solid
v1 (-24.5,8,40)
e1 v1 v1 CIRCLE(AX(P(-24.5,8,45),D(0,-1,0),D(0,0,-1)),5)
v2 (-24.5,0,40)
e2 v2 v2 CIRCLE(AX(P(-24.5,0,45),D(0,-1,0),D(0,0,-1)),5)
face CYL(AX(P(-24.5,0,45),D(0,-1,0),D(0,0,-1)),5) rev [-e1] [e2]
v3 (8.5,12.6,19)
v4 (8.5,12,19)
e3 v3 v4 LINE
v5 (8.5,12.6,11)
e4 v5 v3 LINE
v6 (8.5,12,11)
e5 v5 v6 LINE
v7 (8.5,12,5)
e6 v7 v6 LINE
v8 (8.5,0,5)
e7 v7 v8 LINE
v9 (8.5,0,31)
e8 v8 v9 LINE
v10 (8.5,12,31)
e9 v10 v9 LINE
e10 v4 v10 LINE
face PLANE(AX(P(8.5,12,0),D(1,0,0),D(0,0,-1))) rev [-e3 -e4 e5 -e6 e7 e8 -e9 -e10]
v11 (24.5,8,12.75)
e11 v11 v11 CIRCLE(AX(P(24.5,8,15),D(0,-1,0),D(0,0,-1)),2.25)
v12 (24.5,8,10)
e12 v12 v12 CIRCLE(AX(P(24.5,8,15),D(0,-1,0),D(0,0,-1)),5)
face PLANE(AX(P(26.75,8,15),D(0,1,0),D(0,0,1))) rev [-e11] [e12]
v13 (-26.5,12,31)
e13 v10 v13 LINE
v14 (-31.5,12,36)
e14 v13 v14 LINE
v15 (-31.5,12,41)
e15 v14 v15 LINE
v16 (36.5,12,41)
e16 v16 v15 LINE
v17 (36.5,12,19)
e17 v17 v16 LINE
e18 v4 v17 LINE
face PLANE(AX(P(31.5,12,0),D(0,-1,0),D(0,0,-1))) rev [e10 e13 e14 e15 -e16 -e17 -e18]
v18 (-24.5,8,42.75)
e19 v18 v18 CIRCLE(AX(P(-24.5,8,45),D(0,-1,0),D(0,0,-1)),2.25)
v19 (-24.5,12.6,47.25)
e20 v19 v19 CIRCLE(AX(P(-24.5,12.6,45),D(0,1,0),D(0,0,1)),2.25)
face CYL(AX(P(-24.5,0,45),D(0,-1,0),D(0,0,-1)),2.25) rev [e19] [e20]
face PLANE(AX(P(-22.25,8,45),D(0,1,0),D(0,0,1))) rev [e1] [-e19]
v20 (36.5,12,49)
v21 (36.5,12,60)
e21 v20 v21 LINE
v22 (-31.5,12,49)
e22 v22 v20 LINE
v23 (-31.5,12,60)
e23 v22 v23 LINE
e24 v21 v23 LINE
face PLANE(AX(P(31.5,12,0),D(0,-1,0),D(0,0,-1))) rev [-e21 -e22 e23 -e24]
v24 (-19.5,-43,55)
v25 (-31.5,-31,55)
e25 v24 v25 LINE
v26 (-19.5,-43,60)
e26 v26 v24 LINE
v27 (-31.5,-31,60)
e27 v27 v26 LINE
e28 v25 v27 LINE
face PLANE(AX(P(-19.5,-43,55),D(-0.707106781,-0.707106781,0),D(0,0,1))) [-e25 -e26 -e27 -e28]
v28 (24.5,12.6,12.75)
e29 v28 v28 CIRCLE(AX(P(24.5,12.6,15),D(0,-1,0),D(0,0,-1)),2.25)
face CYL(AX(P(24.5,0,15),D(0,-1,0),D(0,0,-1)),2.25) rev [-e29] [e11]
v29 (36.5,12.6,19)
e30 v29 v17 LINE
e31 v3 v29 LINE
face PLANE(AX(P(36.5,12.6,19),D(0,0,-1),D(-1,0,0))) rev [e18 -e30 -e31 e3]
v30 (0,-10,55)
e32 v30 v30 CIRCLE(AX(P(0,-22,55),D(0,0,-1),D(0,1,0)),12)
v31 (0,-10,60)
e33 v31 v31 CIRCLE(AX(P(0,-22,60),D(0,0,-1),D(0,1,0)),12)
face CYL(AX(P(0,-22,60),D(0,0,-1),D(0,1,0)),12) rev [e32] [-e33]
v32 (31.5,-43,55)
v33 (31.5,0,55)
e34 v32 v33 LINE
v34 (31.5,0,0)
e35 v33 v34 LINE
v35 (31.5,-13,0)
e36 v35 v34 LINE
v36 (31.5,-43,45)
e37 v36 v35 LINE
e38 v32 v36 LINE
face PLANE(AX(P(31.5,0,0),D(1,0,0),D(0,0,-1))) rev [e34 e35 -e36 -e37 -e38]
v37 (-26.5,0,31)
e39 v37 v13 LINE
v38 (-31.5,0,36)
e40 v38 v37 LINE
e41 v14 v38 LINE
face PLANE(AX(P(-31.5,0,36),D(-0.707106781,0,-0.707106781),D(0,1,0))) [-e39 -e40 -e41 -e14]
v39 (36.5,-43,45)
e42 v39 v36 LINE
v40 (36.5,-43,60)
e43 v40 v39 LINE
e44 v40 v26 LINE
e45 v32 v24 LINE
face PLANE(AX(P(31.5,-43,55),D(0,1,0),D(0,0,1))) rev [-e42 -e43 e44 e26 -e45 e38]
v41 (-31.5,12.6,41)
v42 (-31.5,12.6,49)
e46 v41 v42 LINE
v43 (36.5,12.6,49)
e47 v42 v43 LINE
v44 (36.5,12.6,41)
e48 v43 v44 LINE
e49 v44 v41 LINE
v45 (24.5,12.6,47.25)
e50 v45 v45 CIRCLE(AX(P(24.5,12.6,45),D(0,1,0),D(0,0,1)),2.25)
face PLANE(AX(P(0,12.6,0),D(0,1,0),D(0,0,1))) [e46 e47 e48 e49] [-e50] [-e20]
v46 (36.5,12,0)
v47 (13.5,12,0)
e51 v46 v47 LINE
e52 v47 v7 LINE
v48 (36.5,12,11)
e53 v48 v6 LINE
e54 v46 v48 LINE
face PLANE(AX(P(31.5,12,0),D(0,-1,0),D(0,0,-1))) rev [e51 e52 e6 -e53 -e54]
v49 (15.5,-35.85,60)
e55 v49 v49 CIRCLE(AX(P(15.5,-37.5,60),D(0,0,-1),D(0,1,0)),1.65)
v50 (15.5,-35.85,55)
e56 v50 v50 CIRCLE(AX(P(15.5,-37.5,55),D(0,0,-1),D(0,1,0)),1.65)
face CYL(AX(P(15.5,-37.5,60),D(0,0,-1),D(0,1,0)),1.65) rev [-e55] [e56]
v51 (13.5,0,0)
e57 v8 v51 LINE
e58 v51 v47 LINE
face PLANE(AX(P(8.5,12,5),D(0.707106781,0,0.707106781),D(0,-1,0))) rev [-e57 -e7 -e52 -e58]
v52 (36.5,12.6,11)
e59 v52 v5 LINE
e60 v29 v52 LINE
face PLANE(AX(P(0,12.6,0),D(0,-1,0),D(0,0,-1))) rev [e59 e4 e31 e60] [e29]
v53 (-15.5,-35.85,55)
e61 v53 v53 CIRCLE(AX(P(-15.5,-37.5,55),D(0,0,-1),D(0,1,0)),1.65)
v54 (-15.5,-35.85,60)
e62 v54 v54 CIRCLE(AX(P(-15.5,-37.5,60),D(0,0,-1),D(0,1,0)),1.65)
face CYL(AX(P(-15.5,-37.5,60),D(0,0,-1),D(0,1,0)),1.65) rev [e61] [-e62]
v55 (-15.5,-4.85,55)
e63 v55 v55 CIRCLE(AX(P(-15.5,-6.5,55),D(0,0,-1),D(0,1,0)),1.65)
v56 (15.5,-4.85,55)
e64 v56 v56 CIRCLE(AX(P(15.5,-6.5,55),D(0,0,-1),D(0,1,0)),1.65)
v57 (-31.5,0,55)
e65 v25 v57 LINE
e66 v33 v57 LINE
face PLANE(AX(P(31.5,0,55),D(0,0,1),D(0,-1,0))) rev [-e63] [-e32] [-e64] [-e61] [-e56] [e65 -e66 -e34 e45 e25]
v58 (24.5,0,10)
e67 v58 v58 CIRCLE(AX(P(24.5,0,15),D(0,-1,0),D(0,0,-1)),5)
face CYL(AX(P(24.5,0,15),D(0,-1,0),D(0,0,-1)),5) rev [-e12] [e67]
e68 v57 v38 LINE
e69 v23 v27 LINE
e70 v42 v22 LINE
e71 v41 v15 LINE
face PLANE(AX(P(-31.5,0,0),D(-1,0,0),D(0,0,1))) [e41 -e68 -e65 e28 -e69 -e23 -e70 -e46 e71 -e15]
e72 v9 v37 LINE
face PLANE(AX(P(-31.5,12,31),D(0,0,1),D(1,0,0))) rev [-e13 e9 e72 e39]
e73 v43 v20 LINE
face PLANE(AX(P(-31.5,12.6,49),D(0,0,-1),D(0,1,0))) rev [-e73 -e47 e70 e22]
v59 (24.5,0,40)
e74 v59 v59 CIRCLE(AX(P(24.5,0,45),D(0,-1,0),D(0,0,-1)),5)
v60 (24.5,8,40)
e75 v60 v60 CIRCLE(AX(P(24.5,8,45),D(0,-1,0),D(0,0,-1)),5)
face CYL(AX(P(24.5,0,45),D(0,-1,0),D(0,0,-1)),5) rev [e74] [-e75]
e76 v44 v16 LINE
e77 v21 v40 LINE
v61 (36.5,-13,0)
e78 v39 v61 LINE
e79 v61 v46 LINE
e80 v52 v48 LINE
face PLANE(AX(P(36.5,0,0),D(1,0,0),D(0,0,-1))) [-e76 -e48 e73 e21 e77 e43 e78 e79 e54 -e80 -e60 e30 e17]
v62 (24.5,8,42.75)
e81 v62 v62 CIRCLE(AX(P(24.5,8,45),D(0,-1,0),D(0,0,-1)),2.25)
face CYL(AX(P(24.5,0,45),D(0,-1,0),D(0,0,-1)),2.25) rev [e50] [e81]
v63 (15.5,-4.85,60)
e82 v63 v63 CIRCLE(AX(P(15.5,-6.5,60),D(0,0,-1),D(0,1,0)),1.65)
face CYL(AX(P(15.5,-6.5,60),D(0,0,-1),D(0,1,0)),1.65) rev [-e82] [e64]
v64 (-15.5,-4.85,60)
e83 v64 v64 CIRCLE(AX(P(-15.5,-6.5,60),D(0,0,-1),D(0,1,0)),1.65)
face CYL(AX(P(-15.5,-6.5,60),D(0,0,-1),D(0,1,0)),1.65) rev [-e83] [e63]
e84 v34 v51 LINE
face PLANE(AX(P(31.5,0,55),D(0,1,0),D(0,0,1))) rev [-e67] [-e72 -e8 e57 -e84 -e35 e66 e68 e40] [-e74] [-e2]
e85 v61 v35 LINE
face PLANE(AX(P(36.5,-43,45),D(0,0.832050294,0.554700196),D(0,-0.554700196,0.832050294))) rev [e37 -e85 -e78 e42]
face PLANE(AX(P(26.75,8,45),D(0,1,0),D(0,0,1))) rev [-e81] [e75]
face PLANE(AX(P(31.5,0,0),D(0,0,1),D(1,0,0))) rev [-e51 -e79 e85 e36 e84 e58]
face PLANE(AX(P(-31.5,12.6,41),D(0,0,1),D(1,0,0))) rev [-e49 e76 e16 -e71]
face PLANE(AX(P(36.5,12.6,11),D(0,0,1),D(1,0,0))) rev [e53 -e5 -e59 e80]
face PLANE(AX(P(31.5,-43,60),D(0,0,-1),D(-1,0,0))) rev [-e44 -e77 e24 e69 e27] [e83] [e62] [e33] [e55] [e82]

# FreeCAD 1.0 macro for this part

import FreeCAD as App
import Part
import Sketcher
Q = App.Units.Quantity


def edges_at(feature, points):
    """Names of the edges that pass closest to the given points."""
    edges = feature.Shape.Edges
    near = lambda p: min(range(len(edges)), key=lambda i: edges[i].distToShape(Part.Vertex(*p))[0])
    return sorted({f"Edge{near(p) + 1}" for p in points})


def add_polygon(sketch, points):
    """Adds a closed chain of lines whose ends are joined by coincident constraints."""
    first, n = sketch.GeometryCount, len(points)
    for a, b in zip(points, points[1:] + points[:1]):
        sketch.addGeometry(Part.LineSegment(App.Vector(*a, 0), App.Vector(*b, 0)), False)
    for i in range(n):
        sketch.addConstraint(Sketcher.Constraint("Coincident", first + i, 2, first + (i + 1) % n, 1))

doc = App.newDocument("Part")
body = doc.addObject("PartDesign::Body", "Body")

sketch1 = body.newObject("Sketcher::SketchObject", "Sketch")
sketch1.AttachmentSupport = (doc.getObject("YZ_Plane"), [""])
sketch1.MapMode = "FlatFace"
add_polygon(sketch1, [(0, 55), (0, 0), (12, 0), (12, 60), (-43, 60), (-43, 55)])
sketch1.addConstraint([
    Sketcher.Constraint("Vertical", 0),
    Sketcher.Constraint("Horizontal", 1),
    Sketcher.Constraint("Vertical", 2),
    Sketcher.Constraint("Horizontal", 3),
    Sketcher.Constraint("Vertical", 4),
    Sketcher.Constraint("Horizontal", 5),
    Sketcher.Constraint("Coincident", 0, 2, -1, 1),
    Sketcher.Constraint("Equal", 3, 0),
    Sketcher.Constraint("DistanceX", 1, 1, 1, 2, Q("12 mm")),
    Sketcher.Constraint("DistanceX", 3, 2, 3, 1, Q("55 mm")),
    Sketcher.Constraint("DistanceY", 2, 1, 2, 2, Q("60 mm")),
])
pad1 = body.newObject("PartDesign::Pad", "Pad")
pad1.Profile = sketch1
pad1.Length = 63
pad1.Midplane = True

sketch2 = body.newObject("Sketcher::SketchObject", "Sketch001")
sketch2.AttachmentSupport = (doc.getObject("XY_Plane"), [""])
sketch2.MapMode = "FlatFace"
sketch2.AttachmentOffset = App.Placement(App.Vector(0, 0, 55), App.Rotation())
sketch2.addGeometry([
    Part.Circle(App.Vector(0, -22, 0), App.Vector(0, 0, 1), 12),
    Part.Circle(App.Vector(15.5, -6.5, 0), App.Vector(0, 0, 1), 1.6),
    Part.Circle(App.Vector(15.5, -37.5, 0), App.Vector(0, 0, 1), 1.6),
    Part.Circle(App.Vector(-15.5, -37.5, 0), App.Vector(0, 0, 1), 1.6),
    Part.Circle(App.Vector(-15.5, -6.5, 0), App.Vector(0, 0, 1), 1.6),
], False)
sketch2.addConstraint([
    Sketcher.Constraint("Equal", 1, 2),
    Sketcher.Constraint("Equal", 2, 3),
    Sketcher.Constraint("Equal", 3, 4),
    Sketcher.Constraint("Symmetric", 2, 3, 3, 3, -2),
    Sketcher.Constraint("Symmetric", 1, 3, 4, 3, -2),
    Sketcher.Constraint("PointOnObject", 0, 3, -2),
    Sketcher.Constraint("Vertical", 1, 3, 2, 3),
    Sketcher.Constraint("Diameter", 0, Q("24 mm")),
    Sketcher.Constraint("Diameter", 1, Q("3.3 mm")),
    Sketcher.Constraint("DistanceY", 0, 3, -1, 1, Q("22 mm")),
    Sketcher.Constraint("DistanceY", 2, 3, 1, 3, Q("31 mm")),
    Sketcher.Constraint("DistanceX", 3, 3, 2, 3, Q("31 mm")),
    Sketcher.Constraint("DistanceY", 1, 3, -1, 1, Q("6.5 mm")),
])
pocket1 = body.newObject("PartDesign::Pocket", "Pocket")
pocket1.Profile = sketch2
pocket1.Type = "ThroughAll"
pocket1.Reversed = True

sketch3 = body.newObject("Sketcher::SketchObject", "Sketch002")
sketch3.AttachmentSupport = (doc.getObject("XZ_Plane"), [""])
sketch3.MapMode = "FlatFace"
add_polygon(sketch3, [(-32, 31), (-32, 0), (8, 0), (8, 31)])
sketch3.addConstraint([
    Sketcher.Constraint("Vertical", 0),
    Sketcher.Constraint("Horizontal", 1),
    Sketcher.Constraint("Vertical", 2),
    Sketcher.Constraint("Horizontal", 3),
    Sketcher.Constraint("PointOnObject", 0, 2, -1),
    Sketcher.Constraint("DistanceX", 1, 1, 1, 2, Q("40 mm")),
    Sketcher.Constraint("DistanceY", 0, 2, 0, 1, Q("31 mm")),
    Sketcher.Constraint("DistanceX", 0, 2, -1, 1, Q("31.5 mm")),
])
pocket2 = body.newObject("PartDesign::Pocket", "Pocket001")
pocket2.Profile = sketch3
pocket2.Type = "ThroughAll"

sketch4 = body.newObject("Sketcher::SketchObject", "Sketch003")
sketch4.AttachmentSupport = (doc.getObject("YZ_Plane"), [""])
sketch4.MapMode = "FlatFace"
sketch4.AttachmentOffset = App.Placement(App.Vector(0, 0, 31.5), App.Rotation())
add_polygon(sketch4, [(-43, 60), (-43, 45), (-13, 0), (12, 0), (12, 60)])
sketch4.addConstraint([
    Sketcher.Constraint("Vertical", 0),
    Sketcher.Constraint("Horizontal", 2),
    Sketcher.Constraint("Vertical", 3),
    Sketcher.Constraint("Horizontal", 4),
    Sketcher.Constraint("PointOnObject", 1, 2, -1),
    Sketcher.Constraint("DistanceX", 2, 1, 2, 2, Q("25 mm")),
    Sketcher.Constraint("DistanceX", 4, 2, 4, 1, Q("55 mm")),
    Sketcher.Constraint("DistanceY", 0, 2, 0, 1, Q("15 mm")),
    Sketcher.Constraint("DistanceY", 3, 1, 3, 2, Q("60 mm")),
    Sketcher.Constraint("DistanceX", 0, 2, -1, 1, Q("43 mm")),
])
pad2 = body.newObject("PartDesign::Pad", "Pad001")
pad2.Profile = sketch4
pad2.Length = 5

sketch5 = body.newObject("Sketcher::SketchObject", "Sketch004")
sketch5.AttachmentSupport = (doc.getObject("XZ_Plane"), [""])
sketch5.MapMode = "FlatFace"
sketch5.AttachmentOffset = App.Placement(App.Vector(0, 0, -12), App.Rotation())
add_polygon(sketch5, [(-32, 41), (-32, 49), (36, 49), (36, 41)])
add_polygon(sketch5, [(8, 11), (8, 19), (36, 19), (36, 11)])
sketch5.addConstraint([
    Sketcher.Constraint("Vertical", 0),
    Sketcher.Constraint("Horizontal", 1),
    Sketcher.Constraint("Vertical", 2),
    Sketcher.Constraint("Horizontal", 3),
    Sketcher.Constraint("Vertical", 4),
    Sketcher.Constraint("Horizontal", 5),
    Sketcher.Constraint("Vertical", 6),
    Sketcher.Constraint("Horizontal", 7),
    Sketcher.Constraint("Vertical", 2, 2, 5, 2),
    Sketcher.Constraint("Equal", 2, 4),
    Sketcher.Constraint("DistanceX", 1, 1, 1, 2, Q("68 mm")),
    Sketcher.Constraint("DistanceX", 5, 1, 5, 2, Q("28 mm")),
    Sketcher.Constraint("DistanceY", 0, 1, 0, 2, Q("8 mm")),
    Sketcher.Constraint("DistanceY", -1, 1, 0, 2, Q("49 mm")),
    Sketcher.Constraint("DistanceY", -1, 1, 4, 2, Q("19 mm")),
    Sketcher.Constraint("DistanceX", 0, 2, -1, 1, Q("31.5 mm")),
])
pad3 = body.newObject("PartDesign::Pad", "Pad002")
pad3.Profile = sketch5
pad3.Length = 0.6
pad3.Reversed = True

sketch6 = body.newObject("Sketcher::SketchObject", "Sketch005")
sketch6.AttachmentSupport = (doc.getObject("XZ_Plane"), [""])
sketch6.MapMode = "FlatFace"
sketch6.addGeometry([
    Part.Circle(App.Vector(-24.5, 45, 0), App.Vector(0, 0, 1), 2.2),
    Part.Circle(App.Vector(24.5, 45, 0), App.Vector(0, 0, 1), 2.2),
    Part.Circle(App.Vector(24.5, 15, 0), App.Vector(0, 0, 1), 2.2),
], False)
sketch6.addConstraint([
    Sketcher.Constraint("Equal", 0, 1),
    Sketcher.Constraint("Equal", 1, 2),
    Sketcher.Constraint("Symmetric", 0, 3, 1, 3, -2),
    Sketcher.Constraint("Vertical", 1, 3, 2, 3),
    Sketcher.Constraint("Diameter", 0, Q("4.5 mm")),
    Sketcher.Constraint("DistanceY", -1, 1, 0, 3, Q("45 mm")),
    Sketcher.Constraint("DistanceY", -1, 1, 2, 3, Q("15 mm")),
    Sketcher.Constraint("DistanceX", 0, 3, 1, 3, Q("49 mm")),
])
doc.recompute()
hole = body.newObject("PartDesign::Hole", "Hole")
hole.Profile = sketch6
hole.ThreadType = "None"
hole.Diameter = 4.5
hole.DepthType = "ThroughAll"
hole.HoleCutType = "Counterbore"
hole.HoleCutDiameter = 10
hole.HoleCutDepth = 8
doc.recompute()

chamfer = body.newObject("PartDesign::Chamfer", "Chamfer")
chamfer.Base = (hole, edges_at(hole, [(-31.5, -43, 57.5)]))
chamfer.Size = 12
doc.recompute()

chamfer2 = body.newObject("PartDesign::Chamfer", "Chamfer001")
chamfer2.Base = (chamfer, edges_at(chamfer, [(-31.5, 6, 31), (8.5, 6, 0)]))
chamfer2.Size = 5

doc.recompute()
